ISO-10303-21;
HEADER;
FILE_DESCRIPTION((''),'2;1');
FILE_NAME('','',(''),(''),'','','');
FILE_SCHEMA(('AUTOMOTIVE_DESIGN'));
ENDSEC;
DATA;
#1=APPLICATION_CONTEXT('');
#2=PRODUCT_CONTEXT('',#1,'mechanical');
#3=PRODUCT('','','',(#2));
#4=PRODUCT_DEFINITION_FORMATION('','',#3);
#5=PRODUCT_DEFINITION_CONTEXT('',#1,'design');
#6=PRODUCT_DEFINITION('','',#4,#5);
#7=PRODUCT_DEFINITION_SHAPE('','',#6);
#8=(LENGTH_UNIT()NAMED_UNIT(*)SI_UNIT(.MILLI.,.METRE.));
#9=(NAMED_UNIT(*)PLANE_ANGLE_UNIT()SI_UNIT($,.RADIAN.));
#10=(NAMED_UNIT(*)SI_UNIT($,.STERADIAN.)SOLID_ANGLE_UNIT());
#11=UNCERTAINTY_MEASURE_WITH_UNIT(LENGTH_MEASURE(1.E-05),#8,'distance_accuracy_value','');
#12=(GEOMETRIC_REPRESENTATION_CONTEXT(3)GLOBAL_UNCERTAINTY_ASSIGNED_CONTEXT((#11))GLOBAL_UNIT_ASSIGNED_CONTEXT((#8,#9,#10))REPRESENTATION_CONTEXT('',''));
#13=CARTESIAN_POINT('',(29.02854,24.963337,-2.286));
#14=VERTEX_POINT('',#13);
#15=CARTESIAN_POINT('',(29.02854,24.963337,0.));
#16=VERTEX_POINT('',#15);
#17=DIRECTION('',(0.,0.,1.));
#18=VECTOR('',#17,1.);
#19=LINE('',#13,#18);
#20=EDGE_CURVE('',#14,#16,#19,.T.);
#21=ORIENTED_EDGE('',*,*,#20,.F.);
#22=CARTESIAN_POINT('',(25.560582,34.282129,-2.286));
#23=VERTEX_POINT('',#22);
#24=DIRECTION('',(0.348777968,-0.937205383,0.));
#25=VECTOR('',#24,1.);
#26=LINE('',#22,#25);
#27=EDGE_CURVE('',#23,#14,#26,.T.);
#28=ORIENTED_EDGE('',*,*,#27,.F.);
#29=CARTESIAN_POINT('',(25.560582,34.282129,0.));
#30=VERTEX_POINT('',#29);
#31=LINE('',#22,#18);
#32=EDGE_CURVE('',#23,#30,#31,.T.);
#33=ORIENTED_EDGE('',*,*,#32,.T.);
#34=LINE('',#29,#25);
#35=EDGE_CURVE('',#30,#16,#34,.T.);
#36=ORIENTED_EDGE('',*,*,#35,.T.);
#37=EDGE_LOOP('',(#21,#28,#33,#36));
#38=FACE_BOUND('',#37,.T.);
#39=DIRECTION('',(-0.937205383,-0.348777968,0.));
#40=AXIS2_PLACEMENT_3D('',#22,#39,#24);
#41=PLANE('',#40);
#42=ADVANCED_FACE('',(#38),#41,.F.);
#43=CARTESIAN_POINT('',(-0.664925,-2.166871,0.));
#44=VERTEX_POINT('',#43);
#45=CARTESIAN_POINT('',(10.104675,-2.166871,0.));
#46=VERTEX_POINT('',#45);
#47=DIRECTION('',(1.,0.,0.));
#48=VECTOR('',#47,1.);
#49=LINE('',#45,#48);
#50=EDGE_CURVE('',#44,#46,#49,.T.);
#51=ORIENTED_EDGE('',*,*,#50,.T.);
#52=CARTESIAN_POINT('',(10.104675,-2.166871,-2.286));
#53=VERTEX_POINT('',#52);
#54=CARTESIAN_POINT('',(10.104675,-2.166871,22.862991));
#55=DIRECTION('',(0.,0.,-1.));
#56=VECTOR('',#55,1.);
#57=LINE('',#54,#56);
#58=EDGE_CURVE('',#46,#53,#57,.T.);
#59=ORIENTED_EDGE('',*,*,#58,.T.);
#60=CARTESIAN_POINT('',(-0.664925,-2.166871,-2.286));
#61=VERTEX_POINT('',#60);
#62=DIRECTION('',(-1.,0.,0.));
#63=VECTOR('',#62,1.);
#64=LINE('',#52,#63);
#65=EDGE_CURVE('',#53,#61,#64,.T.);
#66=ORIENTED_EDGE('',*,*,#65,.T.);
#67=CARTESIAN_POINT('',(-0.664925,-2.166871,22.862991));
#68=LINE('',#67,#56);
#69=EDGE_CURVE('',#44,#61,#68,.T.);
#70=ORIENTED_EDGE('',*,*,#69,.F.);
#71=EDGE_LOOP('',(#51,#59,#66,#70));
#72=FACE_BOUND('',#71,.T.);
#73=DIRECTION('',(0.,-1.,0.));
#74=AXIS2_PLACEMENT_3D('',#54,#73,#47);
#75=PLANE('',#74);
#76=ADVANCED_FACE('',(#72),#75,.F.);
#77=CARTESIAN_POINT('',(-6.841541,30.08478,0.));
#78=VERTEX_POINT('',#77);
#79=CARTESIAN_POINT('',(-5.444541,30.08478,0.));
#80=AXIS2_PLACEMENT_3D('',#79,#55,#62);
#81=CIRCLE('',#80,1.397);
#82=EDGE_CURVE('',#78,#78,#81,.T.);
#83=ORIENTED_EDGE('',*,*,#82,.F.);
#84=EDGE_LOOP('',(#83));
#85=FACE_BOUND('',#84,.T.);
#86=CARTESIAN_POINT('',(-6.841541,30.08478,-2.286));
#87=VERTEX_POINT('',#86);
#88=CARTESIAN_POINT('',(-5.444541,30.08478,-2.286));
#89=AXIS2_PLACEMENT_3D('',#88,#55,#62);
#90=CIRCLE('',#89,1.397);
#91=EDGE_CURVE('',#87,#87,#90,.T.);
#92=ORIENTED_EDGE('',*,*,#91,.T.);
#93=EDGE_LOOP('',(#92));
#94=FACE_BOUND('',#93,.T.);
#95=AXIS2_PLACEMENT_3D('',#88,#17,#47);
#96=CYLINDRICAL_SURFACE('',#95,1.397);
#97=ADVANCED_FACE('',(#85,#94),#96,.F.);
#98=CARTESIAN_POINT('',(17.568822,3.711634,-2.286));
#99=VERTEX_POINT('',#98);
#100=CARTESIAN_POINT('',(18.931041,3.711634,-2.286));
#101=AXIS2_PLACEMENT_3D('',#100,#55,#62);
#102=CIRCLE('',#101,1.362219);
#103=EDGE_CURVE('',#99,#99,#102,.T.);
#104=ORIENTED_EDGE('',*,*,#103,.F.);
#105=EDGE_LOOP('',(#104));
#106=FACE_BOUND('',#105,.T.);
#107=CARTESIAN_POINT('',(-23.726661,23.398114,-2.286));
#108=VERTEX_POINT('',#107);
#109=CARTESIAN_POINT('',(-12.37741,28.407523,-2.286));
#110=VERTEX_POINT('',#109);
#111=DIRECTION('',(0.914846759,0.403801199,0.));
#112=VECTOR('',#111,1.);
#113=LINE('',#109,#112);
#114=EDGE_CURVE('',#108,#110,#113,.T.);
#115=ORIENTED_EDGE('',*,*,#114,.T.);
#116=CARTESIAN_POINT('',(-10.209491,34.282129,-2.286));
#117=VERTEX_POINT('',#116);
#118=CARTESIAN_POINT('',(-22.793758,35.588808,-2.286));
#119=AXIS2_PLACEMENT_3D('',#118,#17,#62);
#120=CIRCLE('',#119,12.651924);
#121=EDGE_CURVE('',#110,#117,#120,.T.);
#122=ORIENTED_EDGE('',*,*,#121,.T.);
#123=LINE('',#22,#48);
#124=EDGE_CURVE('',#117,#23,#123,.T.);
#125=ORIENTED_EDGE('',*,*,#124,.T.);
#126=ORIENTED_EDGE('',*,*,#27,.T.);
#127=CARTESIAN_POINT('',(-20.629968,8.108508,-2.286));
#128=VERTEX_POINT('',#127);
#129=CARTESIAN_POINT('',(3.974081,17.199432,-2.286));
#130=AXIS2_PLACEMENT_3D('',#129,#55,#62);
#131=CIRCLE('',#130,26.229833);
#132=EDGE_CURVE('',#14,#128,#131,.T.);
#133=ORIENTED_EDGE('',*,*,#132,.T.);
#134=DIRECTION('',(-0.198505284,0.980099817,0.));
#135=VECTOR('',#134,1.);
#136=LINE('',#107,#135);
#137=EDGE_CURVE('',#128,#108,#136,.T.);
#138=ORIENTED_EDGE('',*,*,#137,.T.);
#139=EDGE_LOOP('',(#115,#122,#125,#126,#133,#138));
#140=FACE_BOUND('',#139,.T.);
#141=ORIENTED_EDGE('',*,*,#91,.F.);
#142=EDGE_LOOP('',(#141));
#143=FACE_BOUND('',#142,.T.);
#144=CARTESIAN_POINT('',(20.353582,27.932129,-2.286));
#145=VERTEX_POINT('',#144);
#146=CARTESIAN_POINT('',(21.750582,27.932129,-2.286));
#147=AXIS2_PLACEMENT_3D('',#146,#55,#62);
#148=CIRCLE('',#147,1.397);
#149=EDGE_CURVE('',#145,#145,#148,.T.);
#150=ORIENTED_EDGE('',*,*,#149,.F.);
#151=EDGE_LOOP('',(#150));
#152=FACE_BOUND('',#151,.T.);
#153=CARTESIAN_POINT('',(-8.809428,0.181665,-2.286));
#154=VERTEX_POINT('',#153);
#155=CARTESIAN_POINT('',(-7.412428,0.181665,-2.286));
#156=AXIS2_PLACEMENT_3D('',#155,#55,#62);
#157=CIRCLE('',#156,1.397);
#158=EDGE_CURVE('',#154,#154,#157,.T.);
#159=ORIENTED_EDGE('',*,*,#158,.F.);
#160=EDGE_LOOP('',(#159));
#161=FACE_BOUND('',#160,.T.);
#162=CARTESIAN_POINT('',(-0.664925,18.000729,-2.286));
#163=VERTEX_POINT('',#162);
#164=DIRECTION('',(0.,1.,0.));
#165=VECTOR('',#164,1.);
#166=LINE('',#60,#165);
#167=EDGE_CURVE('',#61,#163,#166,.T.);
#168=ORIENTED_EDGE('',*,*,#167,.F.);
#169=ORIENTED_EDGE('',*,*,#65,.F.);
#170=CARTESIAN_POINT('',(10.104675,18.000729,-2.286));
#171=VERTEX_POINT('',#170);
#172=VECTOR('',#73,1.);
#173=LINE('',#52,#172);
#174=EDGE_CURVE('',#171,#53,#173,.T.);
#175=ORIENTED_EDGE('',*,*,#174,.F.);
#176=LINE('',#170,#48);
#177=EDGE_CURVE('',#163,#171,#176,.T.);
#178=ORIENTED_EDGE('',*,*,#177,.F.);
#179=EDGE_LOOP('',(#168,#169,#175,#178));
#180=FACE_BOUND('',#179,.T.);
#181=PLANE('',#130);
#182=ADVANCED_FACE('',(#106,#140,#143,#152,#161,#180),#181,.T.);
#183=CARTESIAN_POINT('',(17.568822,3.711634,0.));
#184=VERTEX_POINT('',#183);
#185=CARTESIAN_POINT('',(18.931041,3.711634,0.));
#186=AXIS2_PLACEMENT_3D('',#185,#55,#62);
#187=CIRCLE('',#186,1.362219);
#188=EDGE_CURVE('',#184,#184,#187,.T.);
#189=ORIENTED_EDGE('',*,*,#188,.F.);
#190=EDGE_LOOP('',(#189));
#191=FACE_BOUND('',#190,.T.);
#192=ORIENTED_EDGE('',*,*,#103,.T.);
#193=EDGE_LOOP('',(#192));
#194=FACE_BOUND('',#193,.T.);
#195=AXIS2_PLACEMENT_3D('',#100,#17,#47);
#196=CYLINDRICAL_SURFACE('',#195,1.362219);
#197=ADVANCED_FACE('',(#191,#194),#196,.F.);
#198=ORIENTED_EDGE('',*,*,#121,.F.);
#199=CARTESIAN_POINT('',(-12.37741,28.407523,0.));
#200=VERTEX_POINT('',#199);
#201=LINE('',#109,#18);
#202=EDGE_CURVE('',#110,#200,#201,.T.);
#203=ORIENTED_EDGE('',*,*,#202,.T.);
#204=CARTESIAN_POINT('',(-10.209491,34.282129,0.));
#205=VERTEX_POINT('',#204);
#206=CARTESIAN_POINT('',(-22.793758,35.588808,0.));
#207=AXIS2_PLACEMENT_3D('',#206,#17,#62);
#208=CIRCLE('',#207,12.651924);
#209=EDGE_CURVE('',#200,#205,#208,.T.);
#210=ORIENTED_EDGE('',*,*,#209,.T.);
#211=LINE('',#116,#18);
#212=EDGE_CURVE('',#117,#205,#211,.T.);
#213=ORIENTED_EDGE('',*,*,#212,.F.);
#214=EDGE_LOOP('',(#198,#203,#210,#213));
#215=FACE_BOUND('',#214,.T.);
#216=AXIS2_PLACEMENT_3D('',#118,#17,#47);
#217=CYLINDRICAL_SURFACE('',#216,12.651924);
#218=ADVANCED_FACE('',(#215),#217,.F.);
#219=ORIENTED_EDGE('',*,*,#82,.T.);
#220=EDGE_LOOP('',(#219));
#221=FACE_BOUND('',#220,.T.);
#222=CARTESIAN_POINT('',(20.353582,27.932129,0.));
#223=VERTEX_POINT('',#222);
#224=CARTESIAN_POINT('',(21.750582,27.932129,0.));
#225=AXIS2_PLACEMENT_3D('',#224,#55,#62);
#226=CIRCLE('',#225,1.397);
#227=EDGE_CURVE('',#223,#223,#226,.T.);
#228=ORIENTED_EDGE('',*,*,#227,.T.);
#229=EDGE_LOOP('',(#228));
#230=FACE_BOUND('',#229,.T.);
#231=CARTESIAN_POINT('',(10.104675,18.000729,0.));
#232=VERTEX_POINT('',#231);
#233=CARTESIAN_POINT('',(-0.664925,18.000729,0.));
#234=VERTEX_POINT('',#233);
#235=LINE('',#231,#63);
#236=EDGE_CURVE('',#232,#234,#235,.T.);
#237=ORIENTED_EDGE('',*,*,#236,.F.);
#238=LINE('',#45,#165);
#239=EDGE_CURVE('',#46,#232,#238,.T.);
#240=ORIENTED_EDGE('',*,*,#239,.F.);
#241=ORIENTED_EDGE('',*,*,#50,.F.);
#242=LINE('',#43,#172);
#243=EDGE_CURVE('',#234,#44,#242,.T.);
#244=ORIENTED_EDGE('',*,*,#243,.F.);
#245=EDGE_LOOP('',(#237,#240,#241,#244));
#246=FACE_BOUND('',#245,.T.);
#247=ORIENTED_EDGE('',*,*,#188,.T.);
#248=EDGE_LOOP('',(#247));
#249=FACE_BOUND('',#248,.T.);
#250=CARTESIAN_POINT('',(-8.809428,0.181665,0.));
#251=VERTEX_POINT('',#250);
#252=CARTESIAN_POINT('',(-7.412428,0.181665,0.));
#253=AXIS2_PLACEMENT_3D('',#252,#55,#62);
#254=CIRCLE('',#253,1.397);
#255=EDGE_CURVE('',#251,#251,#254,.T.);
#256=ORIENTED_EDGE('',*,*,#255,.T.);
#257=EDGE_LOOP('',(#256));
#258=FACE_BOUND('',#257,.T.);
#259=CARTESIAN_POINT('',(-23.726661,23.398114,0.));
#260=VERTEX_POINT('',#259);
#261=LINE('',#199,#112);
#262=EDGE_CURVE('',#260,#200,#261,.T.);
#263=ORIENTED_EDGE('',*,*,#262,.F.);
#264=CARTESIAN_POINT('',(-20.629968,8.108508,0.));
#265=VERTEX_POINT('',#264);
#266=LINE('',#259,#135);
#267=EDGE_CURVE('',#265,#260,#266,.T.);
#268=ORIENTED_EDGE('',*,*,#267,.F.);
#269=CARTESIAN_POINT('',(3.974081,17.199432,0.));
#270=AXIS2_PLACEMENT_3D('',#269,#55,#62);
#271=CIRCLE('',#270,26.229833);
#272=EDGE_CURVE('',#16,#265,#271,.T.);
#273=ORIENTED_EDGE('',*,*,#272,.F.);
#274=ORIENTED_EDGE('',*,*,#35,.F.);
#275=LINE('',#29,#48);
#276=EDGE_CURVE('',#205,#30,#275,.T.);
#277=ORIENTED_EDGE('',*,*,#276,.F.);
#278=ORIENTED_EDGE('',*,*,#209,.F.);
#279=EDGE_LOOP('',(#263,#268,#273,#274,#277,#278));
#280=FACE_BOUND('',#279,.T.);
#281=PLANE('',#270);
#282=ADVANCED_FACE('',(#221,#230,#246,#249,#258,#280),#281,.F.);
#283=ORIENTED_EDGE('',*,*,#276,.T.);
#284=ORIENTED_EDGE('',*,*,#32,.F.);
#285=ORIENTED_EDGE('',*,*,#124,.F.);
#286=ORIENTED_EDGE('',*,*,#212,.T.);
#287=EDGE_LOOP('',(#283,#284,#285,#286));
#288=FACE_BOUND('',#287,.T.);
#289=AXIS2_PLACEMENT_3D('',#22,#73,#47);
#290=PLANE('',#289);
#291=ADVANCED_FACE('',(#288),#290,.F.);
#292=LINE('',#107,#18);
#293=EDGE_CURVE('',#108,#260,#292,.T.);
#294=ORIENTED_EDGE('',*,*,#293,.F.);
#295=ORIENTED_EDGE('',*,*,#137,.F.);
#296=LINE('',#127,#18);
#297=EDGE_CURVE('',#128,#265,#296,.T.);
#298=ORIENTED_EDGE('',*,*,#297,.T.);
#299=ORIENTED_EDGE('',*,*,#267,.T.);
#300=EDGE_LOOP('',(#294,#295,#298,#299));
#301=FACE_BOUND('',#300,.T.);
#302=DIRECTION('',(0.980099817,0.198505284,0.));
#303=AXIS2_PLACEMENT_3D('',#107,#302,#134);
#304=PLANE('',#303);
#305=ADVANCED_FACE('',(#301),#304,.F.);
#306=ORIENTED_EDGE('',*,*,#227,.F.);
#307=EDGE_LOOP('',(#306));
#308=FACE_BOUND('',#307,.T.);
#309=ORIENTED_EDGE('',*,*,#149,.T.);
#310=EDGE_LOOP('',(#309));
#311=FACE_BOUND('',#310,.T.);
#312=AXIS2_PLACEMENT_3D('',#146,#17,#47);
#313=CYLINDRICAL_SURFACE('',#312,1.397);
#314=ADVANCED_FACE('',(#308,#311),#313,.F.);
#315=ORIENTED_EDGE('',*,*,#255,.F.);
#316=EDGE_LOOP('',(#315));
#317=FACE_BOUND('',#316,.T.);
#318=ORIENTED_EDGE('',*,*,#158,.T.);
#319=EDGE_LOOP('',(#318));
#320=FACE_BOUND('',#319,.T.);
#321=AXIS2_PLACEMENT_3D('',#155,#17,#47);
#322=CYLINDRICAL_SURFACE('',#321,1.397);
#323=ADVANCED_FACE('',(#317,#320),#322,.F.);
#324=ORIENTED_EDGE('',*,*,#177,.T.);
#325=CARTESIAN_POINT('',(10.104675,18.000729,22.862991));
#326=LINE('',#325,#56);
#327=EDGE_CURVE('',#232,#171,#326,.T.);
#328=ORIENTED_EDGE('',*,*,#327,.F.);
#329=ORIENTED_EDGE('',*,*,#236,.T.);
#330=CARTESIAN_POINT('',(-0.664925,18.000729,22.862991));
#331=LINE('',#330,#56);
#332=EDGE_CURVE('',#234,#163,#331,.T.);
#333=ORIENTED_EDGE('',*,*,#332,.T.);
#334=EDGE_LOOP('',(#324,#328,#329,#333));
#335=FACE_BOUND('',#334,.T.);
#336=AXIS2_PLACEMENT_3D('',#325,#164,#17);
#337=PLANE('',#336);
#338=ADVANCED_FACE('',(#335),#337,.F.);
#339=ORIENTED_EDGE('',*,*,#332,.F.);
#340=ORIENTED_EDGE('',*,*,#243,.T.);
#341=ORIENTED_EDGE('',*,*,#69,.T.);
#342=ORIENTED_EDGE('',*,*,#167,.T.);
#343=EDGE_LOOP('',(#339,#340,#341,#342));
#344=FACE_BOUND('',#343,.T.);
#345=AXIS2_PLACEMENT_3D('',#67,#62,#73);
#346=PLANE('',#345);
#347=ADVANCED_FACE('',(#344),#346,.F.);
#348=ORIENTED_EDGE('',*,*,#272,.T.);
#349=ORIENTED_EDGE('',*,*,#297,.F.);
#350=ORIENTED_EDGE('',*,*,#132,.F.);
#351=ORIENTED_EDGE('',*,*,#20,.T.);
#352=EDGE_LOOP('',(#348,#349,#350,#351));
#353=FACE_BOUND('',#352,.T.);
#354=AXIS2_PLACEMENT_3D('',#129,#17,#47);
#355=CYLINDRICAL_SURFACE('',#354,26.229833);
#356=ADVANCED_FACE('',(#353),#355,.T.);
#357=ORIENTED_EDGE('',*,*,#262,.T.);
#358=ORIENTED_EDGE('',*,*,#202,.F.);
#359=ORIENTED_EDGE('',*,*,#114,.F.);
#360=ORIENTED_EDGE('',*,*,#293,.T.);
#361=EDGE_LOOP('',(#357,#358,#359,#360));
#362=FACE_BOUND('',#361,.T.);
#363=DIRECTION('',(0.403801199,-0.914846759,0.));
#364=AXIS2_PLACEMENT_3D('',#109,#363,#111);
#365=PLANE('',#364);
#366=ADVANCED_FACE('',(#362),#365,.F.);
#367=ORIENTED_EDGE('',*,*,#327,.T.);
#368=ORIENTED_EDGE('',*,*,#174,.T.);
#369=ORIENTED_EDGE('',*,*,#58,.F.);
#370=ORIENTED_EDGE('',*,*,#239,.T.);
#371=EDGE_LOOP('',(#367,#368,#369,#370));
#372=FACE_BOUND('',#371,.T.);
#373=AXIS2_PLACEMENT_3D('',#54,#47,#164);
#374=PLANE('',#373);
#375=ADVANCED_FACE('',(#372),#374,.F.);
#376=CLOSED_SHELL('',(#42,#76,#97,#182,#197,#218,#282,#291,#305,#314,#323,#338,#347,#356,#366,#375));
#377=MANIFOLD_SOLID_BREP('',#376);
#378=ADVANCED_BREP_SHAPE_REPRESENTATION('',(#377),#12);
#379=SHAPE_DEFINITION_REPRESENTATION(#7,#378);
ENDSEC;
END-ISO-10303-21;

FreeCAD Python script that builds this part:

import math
import FreeCAD as App
import Part
import Sketcher

V = App.Vector
Q = App.Units.Quantity

doc = App.newDocument("Part")
body = doc.addObject("PartDesign::Body", "Body")

sketch1 = body.newObject("Sketcher::SketchObject", "Sketch")
sketch1.AttachmentSupport = (doc.getObject("XY_Plane"), [""])
sketch1.MapMode = "FlatFace"
sketch1.addGeometry([
    Part.LineSegment(V(-10.209491, 34.282129, 0), V(25.560582, 34.282129, 0)),
    Part.LineSegment(V(25.560582, 34.282129, 0), V(29.02854, 24.963337, 0)),
    Part.ArcOfCircle(Part.Circle(V(3.974081, 17.199432, 0), V(0, 0, 1), 26.229833), math.radians(-159.721287), math.radians(17.217224)),
    Part.LineSegment(V(-20.629968, 8.108508, 0), V(-23.726661, 23.398114, 0)),
    Part.LineSegment(V(-23.726661, 23.398114, 0), V(-12.37741, 28.407523, 0)),
    Part.ArcOfCircle(Part.Circle(V(-22.793758, 35.588808, 0), V(0, 0, 1), 12.651924), math.radians(-34.583331), math.radians(-5.928025)),
    Part.Circle(V(-5.444541, 30.08478, 0), V(0, 0, 1), 1.397),
    Part.Circle(V(-7.412428, 0.181665, 0), V(0, 0, 1), 1.397),
    Part.Circle(V(21.750582, 27.932129, 0), V(0, 0, 1), 1.397),
    Part.Circle(V(18.931041, 3.711634, 0), V(0, 0, 1), 1.362219),
], False)
sketch1.addConstraint([
    Sketcher.Constraint("Coincident", 0, 2, 1, 1),
    Sketcher.Constraint("Coincident", 1, 2, 2, 2),
    Sketcher.Constraint("Coincident", 2, 1, 3, 1),
    Sketcher.Constraint("Coincident", 3, 2, 4, 1),
    Sketcher.Constraint("Coincident", 4, 2, 5, 1),
    Sketcher.Constraint("Coincident", 5, 2, 0, 1),
    Sketcher.Constraint("Horizontal", 0),
    Sketcher.Constraint("Equal", 6, 7),
    Sketcher.Constraint("Equal", 7, 8),
    Sketcher.Constraint("Diameter", 6, Q("0.11 in")),
    Sketcher.Constraint("DistanceX", 8, 3, 0, 2, Q("0.15 in")),
    Sketcher.Constraint("DistanceY", 8, 3, 0, 2, Q("0.25 in")),
    Sketcher.Constraint("Diameter", 9, 2.724438),
    Sketcher.Constraint("Radius", 2, 26.229833),
    Sketcher.Constraint("Radius", 5, 12.651924),
    Sketcher.Constraint("DistanceX", 2, 3, 8, 3, 17.7765),
    Sketcher.Constraint("DistanceY", 9, 3, 2, 3, 13.487798),
    Sketcher.Constraint("DistanceX", 5, 3, 9, 3, 41.724799),
    Sketcher.Constraint("DistanceX", 9, 3, 1, 2, 10.097499),
    Sketcher.Constraint("DistanceY", 2, 1, 5, 3, 27.4803),
    Sketcher.Constraint("Distance", 1, 9.94317),
    Sketcher.Constraint("Distance", 3, 15.60005),
    Sketcher.Constraint("Distance", 4, 12.405631),
    Sketcher.Constraint("DistanceX", 0, 1, 0, 2, 35.770073),
    Sketcher.Constraint("DistanceX", -1, 1, 2, 3, 3.974081),
    Sketcher.Constraint("DistanceY", -1, 1, 2, 3, 17.199432),
    Sketcher.Constraint("DistanceY", -1, 1, 5, 3, 35.588808),
    Sketcher.Constraint("DistanceX", 6, 3, -1, 1, 5.444541),
    Sketcher.Constraint("DistanceY", -1, 1, 6, 3, 30.08478),
    Sketcher.Constraint("DistanceX", 3, 2, -1, 1, 23.726661),
    Sketcher.Constraint("DistanceX", 7, 3, 2, 3, 11.386509),
    Sketcher.Constraint("DistanceY", 7, 3, 9, 3, 3.529968),
])
pad1 = body.newObject("PartDesign::Pad", "Pad")
pad1.Profile = sketch1
pad1.Length = Q("0.09 in")
pad1.Reversed = True

sketch2 = body.newObject("Sketcher::SketchObject", "Sketch001")
sketch2.AttachmentSupport = (doc.getObject("XY_Plane"), [""])
sketch2.MapMode = "FlatFace"
sketch2.AttachmentOffset = App.Placement(V(0, 0, -0.09 * 25.4), App.Rotation())
sketch2.addGeometry([
    Part.LineSegment(V(10.104675, 18.000729, 0), V(10.104675, -2.166871, 0)),
    Part.LineSegment(V(10.104675, -2.166871, 0), V(-0.664925, -2.166871, 0)),
    Part.LineSegment(V(-0.664925, -2.166871, 0), V(-0.664925, 18.000729, 0)),
    Part.LineSegment(V(-0.664925, 18.000729, 0), V(10.104675, 18.000729, 0)),
], False)
sketch2.addConstraint([
    Sketcher.Constraint("Coincident", 0, 2, 1, 1),
    Sketcher.Constraint("Coincident", 1, 2, 2, 1),
    Sketcher.Constraint("Coincident", 2, 2, 3, 1),
    Sketcher.Constraint("Coincident", 3, 2, 0, 1),
    Sketcher.Constraint("Vertical", 0),
    Sketcher.Constraint("Horizontal", 1),
    Sketcher.Constraint("Vertical", 2),
    Sketcher.Constraint("Horizontal", 3),
    Sketcher.Constraint("DistanceX", 1, 2, 1, 1, Q("0.424 in")),
    Sketcher.Constraint("DistanceY", 0, 2, 0, 1, Q("0.794 in")),
    Sketcher.Constraint("DistanceY", 0, 2, -1, 1, 2.166871),
    Sketcher.Constraint("DistanceX", -1, 1, 0, 2, 10.104675),
])
pocket1 = body.newObject("PartDesign::Pocket", "Pocket")
pocket1.Profile = sketch2
pocket1.Length = Q("0.09 in")
pocket1.Reversed = True

doc.recompute()
